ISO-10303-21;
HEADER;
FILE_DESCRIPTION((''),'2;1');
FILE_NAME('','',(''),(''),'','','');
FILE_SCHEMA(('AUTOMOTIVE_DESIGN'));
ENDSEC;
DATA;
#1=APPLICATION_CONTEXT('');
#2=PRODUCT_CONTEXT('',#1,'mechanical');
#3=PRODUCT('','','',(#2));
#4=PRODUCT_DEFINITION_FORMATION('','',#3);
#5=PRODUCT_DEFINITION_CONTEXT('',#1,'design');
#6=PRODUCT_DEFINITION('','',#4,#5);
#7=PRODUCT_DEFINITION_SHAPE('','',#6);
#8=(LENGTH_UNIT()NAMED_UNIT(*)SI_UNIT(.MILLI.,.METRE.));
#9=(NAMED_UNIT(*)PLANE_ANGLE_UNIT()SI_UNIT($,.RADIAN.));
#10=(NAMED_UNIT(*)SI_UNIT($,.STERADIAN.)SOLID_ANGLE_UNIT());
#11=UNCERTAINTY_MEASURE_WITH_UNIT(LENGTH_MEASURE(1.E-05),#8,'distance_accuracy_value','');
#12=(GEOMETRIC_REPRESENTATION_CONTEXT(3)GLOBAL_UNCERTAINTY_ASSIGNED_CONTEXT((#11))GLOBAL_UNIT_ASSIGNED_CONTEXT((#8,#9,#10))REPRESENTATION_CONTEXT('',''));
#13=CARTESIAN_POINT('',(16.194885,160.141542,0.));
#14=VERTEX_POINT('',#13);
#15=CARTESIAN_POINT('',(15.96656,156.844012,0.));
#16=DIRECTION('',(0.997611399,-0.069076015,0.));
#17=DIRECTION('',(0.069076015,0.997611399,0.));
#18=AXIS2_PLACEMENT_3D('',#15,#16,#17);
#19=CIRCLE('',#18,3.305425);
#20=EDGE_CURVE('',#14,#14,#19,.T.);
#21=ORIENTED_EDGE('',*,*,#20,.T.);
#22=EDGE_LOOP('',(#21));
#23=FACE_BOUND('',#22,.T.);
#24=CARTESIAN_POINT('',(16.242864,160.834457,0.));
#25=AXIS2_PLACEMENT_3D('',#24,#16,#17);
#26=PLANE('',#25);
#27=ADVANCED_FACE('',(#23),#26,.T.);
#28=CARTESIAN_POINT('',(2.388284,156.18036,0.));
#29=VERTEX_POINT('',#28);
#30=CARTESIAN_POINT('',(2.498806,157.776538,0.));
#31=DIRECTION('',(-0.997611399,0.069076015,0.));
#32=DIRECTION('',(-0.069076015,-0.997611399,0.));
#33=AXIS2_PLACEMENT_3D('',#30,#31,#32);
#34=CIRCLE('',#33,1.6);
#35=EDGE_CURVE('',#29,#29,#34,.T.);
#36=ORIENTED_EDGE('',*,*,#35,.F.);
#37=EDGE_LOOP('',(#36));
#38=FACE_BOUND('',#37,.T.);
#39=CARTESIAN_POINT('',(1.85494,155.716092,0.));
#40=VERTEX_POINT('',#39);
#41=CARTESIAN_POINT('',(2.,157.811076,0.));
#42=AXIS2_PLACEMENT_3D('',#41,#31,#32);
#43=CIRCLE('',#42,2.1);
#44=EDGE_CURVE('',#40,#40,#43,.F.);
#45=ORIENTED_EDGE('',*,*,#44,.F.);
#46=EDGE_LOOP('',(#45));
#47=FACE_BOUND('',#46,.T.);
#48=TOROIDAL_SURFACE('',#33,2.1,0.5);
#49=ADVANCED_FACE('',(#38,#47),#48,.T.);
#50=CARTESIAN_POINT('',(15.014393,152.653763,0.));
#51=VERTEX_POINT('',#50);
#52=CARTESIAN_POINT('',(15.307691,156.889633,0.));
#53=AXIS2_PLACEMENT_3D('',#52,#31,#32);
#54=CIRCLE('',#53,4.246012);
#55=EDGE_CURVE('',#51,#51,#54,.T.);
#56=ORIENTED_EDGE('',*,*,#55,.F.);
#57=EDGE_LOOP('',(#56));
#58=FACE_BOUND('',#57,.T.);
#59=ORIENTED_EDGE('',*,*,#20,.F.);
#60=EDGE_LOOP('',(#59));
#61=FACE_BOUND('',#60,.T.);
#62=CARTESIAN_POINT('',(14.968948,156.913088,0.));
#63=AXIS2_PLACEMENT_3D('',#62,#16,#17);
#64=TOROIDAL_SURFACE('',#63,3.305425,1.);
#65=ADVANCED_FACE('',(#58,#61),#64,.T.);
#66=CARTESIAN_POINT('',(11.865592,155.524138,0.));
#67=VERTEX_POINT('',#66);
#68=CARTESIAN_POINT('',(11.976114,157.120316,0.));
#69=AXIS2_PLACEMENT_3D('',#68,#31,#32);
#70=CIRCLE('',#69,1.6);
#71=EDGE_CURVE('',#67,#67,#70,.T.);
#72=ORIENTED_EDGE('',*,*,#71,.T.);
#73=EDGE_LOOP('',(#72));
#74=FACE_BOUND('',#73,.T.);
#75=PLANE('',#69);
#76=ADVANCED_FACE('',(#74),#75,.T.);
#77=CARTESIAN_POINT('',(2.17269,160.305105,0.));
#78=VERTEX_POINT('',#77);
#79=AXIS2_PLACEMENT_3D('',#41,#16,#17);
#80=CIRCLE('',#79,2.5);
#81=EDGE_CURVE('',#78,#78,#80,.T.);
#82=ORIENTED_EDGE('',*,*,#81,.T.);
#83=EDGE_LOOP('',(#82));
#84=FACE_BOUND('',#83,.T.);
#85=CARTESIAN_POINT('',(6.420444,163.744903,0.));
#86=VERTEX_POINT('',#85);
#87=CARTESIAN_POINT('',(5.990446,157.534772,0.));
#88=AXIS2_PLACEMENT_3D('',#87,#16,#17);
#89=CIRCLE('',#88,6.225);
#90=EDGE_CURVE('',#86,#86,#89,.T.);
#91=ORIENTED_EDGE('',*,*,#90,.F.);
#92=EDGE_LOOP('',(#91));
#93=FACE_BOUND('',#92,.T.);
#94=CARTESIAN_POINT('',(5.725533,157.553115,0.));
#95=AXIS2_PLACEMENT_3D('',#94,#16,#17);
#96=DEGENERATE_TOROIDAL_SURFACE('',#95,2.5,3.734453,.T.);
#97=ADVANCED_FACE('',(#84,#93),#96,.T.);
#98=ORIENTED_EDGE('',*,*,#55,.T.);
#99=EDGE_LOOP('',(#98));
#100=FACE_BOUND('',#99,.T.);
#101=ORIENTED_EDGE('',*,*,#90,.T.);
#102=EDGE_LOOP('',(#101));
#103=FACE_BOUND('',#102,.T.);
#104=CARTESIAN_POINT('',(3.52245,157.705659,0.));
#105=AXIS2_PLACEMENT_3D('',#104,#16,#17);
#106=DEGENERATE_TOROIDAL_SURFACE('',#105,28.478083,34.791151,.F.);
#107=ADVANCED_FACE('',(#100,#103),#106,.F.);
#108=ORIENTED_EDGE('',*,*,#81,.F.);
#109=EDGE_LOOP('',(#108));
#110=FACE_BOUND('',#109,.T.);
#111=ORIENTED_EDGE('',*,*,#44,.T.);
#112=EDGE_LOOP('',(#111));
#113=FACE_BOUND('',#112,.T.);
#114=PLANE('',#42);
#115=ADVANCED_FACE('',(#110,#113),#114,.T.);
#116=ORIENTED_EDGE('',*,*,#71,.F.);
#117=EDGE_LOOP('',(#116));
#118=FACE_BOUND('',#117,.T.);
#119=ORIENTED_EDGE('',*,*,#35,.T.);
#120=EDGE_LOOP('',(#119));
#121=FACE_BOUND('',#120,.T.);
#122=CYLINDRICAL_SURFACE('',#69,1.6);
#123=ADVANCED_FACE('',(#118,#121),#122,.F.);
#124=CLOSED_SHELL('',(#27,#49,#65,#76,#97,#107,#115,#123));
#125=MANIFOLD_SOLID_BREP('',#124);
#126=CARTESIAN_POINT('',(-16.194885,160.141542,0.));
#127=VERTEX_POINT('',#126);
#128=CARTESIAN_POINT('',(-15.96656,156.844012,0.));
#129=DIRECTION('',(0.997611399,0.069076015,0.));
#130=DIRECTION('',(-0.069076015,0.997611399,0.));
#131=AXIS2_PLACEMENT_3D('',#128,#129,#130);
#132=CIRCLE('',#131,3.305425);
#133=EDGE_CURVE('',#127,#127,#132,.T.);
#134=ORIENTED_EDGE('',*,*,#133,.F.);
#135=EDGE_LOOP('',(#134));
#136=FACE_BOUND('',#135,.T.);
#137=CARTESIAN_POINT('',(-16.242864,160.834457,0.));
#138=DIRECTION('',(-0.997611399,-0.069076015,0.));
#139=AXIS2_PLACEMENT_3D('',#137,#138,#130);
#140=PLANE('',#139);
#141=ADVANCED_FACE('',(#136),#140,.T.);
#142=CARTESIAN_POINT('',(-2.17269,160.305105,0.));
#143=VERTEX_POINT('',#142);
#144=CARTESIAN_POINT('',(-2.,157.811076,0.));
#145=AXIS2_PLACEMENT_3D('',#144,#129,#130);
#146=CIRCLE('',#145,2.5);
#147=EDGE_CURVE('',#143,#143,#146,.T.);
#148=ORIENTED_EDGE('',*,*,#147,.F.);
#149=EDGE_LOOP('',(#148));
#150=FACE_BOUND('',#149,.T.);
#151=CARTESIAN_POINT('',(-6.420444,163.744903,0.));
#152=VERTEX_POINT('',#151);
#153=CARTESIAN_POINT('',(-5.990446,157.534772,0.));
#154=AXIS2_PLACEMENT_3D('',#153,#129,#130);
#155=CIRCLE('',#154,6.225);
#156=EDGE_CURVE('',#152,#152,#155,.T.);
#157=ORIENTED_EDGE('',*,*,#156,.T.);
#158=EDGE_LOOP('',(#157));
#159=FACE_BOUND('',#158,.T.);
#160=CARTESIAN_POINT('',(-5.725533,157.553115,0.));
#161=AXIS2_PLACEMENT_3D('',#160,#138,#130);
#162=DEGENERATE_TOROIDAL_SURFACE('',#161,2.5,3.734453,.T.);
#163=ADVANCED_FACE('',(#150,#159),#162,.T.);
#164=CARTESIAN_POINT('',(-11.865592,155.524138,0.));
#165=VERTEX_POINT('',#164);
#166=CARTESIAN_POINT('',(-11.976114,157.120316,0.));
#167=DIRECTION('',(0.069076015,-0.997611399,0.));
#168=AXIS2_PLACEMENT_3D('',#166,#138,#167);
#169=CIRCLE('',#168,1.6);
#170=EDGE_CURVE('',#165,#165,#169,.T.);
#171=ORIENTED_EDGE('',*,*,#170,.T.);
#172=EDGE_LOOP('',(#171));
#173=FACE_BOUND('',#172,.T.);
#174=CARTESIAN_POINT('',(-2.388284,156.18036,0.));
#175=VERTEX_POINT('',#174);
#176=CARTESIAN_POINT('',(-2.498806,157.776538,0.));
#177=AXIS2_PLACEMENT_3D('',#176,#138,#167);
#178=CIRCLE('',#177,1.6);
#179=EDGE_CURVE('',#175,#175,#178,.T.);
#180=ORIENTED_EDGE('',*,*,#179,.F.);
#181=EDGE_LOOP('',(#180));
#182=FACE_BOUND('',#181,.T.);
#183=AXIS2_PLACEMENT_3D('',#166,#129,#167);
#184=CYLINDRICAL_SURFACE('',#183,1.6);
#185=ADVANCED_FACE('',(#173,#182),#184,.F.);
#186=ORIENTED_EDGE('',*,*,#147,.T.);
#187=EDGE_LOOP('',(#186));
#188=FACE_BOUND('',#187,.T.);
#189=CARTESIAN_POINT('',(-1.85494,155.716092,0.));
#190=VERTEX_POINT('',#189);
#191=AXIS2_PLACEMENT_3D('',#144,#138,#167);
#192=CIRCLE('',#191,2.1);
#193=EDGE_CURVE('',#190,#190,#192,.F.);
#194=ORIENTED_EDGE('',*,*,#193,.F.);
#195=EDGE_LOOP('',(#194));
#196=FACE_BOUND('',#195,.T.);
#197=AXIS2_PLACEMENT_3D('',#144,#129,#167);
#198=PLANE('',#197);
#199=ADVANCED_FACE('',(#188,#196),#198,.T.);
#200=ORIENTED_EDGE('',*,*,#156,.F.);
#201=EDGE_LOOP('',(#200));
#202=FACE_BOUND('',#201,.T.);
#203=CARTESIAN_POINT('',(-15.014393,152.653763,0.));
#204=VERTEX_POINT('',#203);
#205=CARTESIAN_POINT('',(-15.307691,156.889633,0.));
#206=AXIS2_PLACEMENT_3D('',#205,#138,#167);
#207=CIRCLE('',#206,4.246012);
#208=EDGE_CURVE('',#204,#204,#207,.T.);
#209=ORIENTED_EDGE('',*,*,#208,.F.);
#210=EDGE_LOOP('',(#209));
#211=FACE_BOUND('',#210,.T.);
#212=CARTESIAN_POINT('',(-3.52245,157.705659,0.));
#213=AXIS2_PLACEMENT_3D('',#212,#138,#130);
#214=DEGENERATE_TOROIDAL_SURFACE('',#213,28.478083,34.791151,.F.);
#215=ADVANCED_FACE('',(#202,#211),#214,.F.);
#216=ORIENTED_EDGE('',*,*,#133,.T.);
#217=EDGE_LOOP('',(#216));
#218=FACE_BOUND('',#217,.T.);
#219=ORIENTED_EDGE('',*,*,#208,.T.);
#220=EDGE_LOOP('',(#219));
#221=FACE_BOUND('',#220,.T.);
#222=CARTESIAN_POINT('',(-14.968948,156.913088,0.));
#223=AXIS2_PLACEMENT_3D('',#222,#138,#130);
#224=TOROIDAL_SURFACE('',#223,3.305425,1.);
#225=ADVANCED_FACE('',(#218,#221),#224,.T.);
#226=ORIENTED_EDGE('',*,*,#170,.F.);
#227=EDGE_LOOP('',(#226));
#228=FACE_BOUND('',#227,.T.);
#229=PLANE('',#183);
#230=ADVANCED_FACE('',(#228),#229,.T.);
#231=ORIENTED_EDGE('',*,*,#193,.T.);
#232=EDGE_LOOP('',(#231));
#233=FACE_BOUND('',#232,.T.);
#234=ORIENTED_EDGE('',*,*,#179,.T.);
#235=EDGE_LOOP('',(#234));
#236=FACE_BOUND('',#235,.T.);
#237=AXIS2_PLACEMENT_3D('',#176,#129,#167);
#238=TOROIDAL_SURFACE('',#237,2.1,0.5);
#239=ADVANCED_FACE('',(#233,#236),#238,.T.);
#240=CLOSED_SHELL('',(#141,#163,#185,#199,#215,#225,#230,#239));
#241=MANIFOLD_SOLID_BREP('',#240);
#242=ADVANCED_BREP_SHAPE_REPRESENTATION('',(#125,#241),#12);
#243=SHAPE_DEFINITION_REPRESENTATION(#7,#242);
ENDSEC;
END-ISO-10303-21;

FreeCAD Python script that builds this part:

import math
import FreeCAD as App
import Part
import Sketcher
from FreeCAD import Vector


def edges_at(feature, points):
    """Names of the edges that pass closest to the given points."""
    edges = feature.Shape.Edges
    near = lambda p: min(range(len(edges)), key=lambda i: edges[i].distToShape(Part.Vertex(*p))[0])
    return sorted({f"Edge{near(p) + 1}" for p in points})

doc = App.newDocument("Part")
params = doc.addObject("Spreadsheet::Sheet", "Params")
for row, (alias, value) in enumerate([
    ("sketch1_length", "14 mm"),
    ("sketch1_length2", "4 mm"),
    ("sketch1_length3", "2.5 mm"),
    ("revolution_angle", "360 deg"),
    ("fillet_radius", "1 mm"),
    ("sketch2_diameter", "3.2 mm"),
    ("pocket1_length", "10 mm"),
    ("fillet2_radius", "0.5 mm"),
], start=1):
    params.set(f"A{row}", alias)
    params.set(f"B{row}", "=" + value)
    params.setAlias(f"B{row}", alias)

body = doc.addObject("PartDesign::Body", "Body")

# Sketch on XY plane
sketch1 = body.newObject("Sketcher::SketchObject", "Sketch")
sketch1.AttachmentSupport = (doc.getObject("XY_Plane"), [""])
sketch1.MapMode = "FlatFace"
sketch1.addGeometry([
    Part.LineSegment(Vector(2.2, 160.3, 0), Vector(2, 157.8, 0)),  # 0
    Part.LineSegment(Vector(2, 157.8, 0), Vector(16, 156.8, 0)),  # 1
    Part.LineSegment(Vector(16, 156.8, 0), Vector(16.2, 160.8, 0)),  # 2
    Part.ArcOfCircle(Part.Circle(Vector(1.6, 129.3, 0), Vector(0, 0, 1), 34.8), math.radians(65.03), math.radians(81.96)),  # 3
    Part.ArcOfCircle(Part.Circle(Vector(5.9, 160, 0), Vector(0, 0, 1), 3.7), math.radians(82), math.radians(176)),  # 4
], False)
sketch1.addGeometry(Part.LineSegment(Vector(16, 156.8, 0), Vector(2, 157.8, 0)), True)  # axis
sketch1.addConstraint([
    Sketcher.Constraint("Coincident", 0, 2, 1, 1),
    Sketcher.Constraint("Coincident", 1, 2, 2, 1),
    Sketcher.Constraint("Coincident", 2, 2, 3, 1),
    Sketcher.Constraint("Tangent", 3, 2, 4, 1),
    Sketcher.Constraint("Tangent", 4, 2, 0, 1),
    Sketcher.Constraint("Coincident", 5, 1, 1, 2),
    Sketcher.Constraint("Coincident", 5, 2, 0, 2),
    Sketcher.Constraint("Perpendicular", 0, 1),
    Sketcher.Constraint("Perpendicular", 1, 2),
    Sketcher.Constraint("Distance", 1, 14.0),
    Sketcher.Constraint("Distance", 2, 4.0),
    Sketcher.Constraint("DistanceX", -1, 1, 0, 2, 2.0),
    Sketcher.Constraint("Distance", 0, 2.5),
    Sketcher.Constraint("Radius", 3, 34.791151),
    Sketcher.Constraint("Radius", 4, 3.734453),
    Sketcher.Constraint("DistanceY", -1, 1, 3, 3, 129.295599),
    Sketcher.Constraint("DistanceY", 4, 2, 3, 2, 3.439798),
])
sketch1.setExpression("Constraints[9]", "Params.sketch1_length")
sketch1.setExpression("Constraints[10]", "Params.sketch1_length2")
sketch1.setExpression("Constraints[12]", "Params.sketch1_length3")
revolution = body.newObject("PartDesign::Revolution", "Revolution")
revolution.Profile = sketch1
revolution.ReferenceAxis = (sketch1, ["Axis0"])
revolution.setExpression("Angle", "Params.revolution_angle")
doc.recompute()

fillet = body.newObject("PartDesign::Fillet", "Fillet")
fillet.Base = (revolution, edges_at(revolution, [(15.69, 152.854, 0)]))
fillet.setExpression("Radius", "Params.fillet_radius")

# Sketch on an angled plane
sketch2 = body.newObject("Sketcher::SketchObject", "Sketch001")
sketch2.Placement = App.Placement(Vector(-8.884465, 0.615173, 0), App.Rotation(Vector(0, 0, 1), Vector(0.069076015, 0.997611399, 0), Vector(-0.997611399, 0.069076015, 0), "ZXY"))
sketch2.addGeometry(Part.Circle(Vector(0, 157.6, 0), Vector(0, 0, 1), 1.6), False)
sketch2.addConstraint([
    Sketcher.Constraint("PointOnObject", 0, 3, -2),
    Sketcher.Constraint("Diameter", 0, 3.2),
    Sketcher.Constraint("DistanceY", -1, 1, 0, 3, 157.57228),
])
sketch2.setExpression("Constraints[1]", "Params.sketch2_diameter")
pocket1 = body.newObject("PartDesign::Pocket", "Pocket")
pocket1.Profile = sketch2
pocket1.setExpression("Length", "Params.pocket1_length")
doc.recompute()

fillet2 = body.newObject("PartDesign::Fillet", "Fillet001")
fillet2.Base = (pocket1, edges_at(pocket1, [(2.111, 159.407, 0)]))
fillet2.setExpression("Radius", "Params.fillet2_radius")
body2 = doc.addObject("PartDesign::Body", "Body001")
doc.recompute()

mirroring = doc.addObject("Part::Mirroring", "Mirroring")
mirroring.Source = body
mirroring.Base = Vector(0, 0, 0)
mirroring.Normal = Vector(1, 0, 0)
body2.BaseFeature = mirroring
doc.recompute()
mirroring.Visibility = False

doc.recompute()
